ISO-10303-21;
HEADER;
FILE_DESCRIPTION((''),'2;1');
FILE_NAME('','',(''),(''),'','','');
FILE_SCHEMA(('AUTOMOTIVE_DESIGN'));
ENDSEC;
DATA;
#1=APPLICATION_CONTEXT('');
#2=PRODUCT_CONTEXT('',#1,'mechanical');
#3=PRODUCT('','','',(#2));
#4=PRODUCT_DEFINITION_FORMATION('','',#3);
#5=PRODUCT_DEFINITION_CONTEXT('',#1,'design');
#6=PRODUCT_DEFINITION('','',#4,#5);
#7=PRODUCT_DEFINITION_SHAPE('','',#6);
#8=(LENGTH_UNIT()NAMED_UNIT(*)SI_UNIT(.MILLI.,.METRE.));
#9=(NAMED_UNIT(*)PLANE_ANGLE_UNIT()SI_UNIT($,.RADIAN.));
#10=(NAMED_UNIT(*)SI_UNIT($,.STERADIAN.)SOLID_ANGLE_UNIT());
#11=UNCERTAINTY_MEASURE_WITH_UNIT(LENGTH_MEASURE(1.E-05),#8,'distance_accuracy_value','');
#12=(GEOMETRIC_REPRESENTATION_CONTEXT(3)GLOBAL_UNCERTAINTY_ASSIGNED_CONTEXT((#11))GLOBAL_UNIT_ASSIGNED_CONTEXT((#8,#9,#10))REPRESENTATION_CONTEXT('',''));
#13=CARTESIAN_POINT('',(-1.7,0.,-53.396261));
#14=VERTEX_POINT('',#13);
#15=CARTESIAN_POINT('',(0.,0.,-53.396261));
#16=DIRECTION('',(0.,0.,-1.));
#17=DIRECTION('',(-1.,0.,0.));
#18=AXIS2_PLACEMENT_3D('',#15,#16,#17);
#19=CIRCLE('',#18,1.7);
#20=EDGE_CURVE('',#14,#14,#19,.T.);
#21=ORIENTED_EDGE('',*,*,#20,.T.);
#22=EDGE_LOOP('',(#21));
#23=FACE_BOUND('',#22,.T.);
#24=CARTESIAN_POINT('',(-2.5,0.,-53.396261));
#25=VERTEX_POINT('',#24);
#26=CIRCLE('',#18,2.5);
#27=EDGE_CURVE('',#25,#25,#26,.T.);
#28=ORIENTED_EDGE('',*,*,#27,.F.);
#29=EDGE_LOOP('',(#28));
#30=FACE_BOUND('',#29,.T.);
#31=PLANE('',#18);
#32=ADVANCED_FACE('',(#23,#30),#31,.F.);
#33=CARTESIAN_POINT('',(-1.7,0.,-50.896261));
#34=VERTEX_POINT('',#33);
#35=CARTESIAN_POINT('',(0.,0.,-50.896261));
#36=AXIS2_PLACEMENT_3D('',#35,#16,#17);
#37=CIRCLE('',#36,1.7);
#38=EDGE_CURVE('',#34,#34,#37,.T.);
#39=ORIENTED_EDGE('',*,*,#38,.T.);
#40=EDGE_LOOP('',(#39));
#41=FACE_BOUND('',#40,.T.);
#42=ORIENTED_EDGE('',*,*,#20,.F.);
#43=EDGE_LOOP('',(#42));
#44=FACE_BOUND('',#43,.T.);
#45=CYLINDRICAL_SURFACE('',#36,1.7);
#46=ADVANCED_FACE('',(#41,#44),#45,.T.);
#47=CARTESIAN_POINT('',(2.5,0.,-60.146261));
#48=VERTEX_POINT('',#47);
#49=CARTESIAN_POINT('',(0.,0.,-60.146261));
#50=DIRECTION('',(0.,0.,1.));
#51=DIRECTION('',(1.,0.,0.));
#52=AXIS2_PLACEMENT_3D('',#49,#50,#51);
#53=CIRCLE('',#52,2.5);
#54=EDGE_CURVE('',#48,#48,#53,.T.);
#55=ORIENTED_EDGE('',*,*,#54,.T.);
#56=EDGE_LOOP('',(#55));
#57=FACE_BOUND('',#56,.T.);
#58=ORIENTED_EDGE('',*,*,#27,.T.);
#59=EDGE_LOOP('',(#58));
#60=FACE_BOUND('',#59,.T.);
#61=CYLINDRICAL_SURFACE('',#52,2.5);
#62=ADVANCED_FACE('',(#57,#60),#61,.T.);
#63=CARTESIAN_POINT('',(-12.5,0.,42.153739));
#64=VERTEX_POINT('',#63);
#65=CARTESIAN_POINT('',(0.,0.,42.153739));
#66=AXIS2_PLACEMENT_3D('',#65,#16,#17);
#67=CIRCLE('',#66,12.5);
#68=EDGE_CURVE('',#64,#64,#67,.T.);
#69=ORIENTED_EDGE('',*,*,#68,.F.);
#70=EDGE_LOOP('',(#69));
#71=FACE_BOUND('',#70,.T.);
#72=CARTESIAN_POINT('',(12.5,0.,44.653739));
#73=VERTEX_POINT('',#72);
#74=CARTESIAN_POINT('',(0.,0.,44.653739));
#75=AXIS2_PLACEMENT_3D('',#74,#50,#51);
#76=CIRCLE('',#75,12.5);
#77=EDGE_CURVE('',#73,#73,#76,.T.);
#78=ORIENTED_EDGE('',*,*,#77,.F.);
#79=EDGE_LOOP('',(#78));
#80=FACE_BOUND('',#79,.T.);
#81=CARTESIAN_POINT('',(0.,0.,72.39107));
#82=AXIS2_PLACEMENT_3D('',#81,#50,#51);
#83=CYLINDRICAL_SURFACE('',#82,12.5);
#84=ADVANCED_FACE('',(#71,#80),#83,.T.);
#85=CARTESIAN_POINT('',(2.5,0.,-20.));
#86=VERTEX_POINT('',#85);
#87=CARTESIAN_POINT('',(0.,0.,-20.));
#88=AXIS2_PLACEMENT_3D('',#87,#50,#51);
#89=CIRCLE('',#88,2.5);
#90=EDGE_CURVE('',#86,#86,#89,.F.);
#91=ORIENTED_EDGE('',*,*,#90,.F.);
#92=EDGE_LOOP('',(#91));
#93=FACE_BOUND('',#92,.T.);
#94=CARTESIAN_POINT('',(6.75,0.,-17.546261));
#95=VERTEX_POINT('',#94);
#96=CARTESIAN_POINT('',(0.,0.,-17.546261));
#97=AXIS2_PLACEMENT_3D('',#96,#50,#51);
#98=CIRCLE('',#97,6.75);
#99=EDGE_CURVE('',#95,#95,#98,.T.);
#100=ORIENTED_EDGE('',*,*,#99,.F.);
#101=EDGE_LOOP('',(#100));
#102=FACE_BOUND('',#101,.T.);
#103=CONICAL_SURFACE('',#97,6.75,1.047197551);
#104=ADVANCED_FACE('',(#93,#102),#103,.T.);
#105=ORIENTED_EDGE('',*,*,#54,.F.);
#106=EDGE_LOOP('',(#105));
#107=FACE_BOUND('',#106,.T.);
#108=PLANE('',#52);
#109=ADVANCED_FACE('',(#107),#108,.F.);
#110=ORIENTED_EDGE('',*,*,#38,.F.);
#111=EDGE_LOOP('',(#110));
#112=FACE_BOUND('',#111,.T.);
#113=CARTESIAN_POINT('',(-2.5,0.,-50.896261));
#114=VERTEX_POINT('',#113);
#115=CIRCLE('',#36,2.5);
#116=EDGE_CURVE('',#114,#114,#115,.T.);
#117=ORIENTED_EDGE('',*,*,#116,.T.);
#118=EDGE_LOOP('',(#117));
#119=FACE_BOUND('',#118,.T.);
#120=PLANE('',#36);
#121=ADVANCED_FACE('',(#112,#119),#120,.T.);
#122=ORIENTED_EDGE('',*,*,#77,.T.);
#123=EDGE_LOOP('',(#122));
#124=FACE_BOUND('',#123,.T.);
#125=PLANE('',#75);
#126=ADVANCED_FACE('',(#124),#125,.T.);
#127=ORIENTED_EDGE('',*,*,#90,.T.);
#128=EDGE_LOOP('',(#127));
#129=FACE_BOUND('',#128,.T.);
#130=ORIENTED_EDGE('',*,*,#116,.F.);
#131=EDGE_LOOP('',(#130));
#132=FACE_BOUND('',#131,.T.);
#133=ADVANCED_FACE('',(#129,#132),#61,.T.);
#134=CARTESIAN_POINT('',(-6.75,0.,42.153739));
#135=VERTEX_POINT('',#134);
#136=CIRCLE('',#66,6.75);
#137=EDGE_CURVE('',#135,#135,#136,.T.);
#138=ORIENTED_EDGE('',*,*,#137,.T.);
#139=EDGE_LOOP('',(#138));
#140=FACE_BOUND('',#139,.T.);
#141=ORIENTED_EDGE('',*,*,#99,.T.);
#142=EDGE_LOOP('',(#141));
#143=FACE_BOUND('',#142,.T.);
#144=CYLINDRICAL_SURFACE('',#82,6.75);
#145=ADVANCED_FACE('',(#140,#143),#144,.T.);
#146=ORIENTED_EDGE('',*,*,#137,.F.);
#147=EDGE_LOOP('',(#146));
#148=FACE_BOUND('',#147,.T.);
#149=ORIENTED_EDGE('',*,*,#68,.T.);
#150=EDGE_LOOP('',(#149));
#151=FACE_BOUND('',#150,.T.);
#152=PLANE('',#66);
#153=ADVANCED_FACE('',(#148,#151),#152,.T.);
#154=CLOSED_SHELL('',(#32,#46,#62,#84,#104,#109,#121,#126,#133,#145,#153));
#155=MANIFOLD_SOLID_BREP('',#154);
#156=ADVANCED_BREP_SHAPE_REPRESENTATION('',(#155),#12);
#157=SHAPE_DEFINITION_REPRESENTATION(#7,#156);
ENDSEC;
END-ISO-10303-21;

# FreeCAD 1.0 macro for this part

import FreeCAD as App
import Part
import Sketcher
Q = App.Units.Quantity


def add_polygon(sketch, points):
    """Adds a closed chain of lines whose ends are joined by coincident constraints."""
    first, n = sketch.GeometryCount, len(points)
    for a, b in zip(points, points[1:] + points[:1]):
        sketch.addGeometry(Part.LineSegment(App.Vector(*a, 0), App.Vector(*b, 0)), False)
    for i in range(n):
        sketch.addConstraint(Sketcher.Constraint("Coincident", first + i, 2, first + (i + 1) % n, 1))

doc = App.newDocument("Part")
body = doc.addObject("PartDesign::Body", "Body")

# Sketch on YZ plane
sketch1 = body.newObject("Sketcher::SketchObject", "Sketch")
sketch1.AttachmentSupport = (doc.getObject("YZ_Plane"), [""])
sketch1.MapMode = "FlatFace"
add_polygon(sketch1, [(0, 44.7), (-12.5, 44.7), (-12.5, 40.7), (-6.8, 40.7), (-6.8, -17.5), (-2.5, -20), (-2.5, 0), (0, 0)])  # lines 0-7
sketch1.addConstraint(Sketcher.Constraint("Horizontal", 0))
sketch1.addConstraint(Sketcher.Constraint("Vertical", 1))
sketch1.addConstraint(Sketcher.Constraint("Horizontal", 2))
sketch1.addConstraint(Sketcher.Constraint("Vertical", 3))
sketch1.addConstraint(Sketcher.Constraint("Vertical", 5))
sketch1.addConstraint(Sketcher.Constraint("Horizontal", 6))
sketch1.addConstraint(Sketcher.Constraint("Vertical", 7))
sketch1.addConstraint(Sketcher.Constraint("Coincident", 6, 2, -1, 1))
sketch1.addConstraint(Sketcher.Constraint("DistanceY", 1, 2, 1, 1, Q("4 mm")))
sketch1.addConstraint(Sketcher.Constraint("DistanceY", 5, 1, 5, 2, Q("20 mm")))
sketch1.addConstraint(Sketcher.Constraint("Angle", 4, Q("-30 deg")))
sketch1.addConstraint(Sketcher.Constraint("DistanceX", 0, 2, 0, 1, Q("12.5 mm")))
sketch1.addConstraint(Sketcher.Constraint("DistanceX", 6, 1, 6, 2, Q("2.5 mm")))
sketch1.addConstraint(Sketcher.Constraint("DistanceY", 3, 2, 3, 1, Q("58.2 mm")))
sketch1.addConstraint(Sketcher.Constraint("DistanceX", 2, 1, 2, 2, Q("5.75 mm")))
revolution = body.newObject("PartDesign::Revolution", "Revolution")
revolution.Profile = sketch1
revolution.ReferenceAxis = (sketch1, ["V_Axis"])
revolution.Angle = 360

# Sketch on XY plane
sketch2 = body.newObject("Sketcher::SketchObject", "Sketch001")
sketch2.AttachmentSupport = (doc.getObject("XY_Plane"), [""])
sketch2.MapMode = "FlatFace"
sketch2.AttachmentOffset = App.Placement(App.Vector(0, 0, 40.653739), App.Rotation())
sketch2.addGeometry(Part.Circle(App.Vector(0, 0, 0), App.Vector(0, 0, 1), 12), False)
sketch2.addGeometry(Part.Circle(App.Vector(0, 0, 0), App.Vector(0, 0, 1), 7), False)
sketch2.addConstraint(Sketcher.Constraint("Coincident", 0, 3, -1, 1))
sketch2.addConstraint(Sketcher.Constraint("Coincident", 1, 3, -1, 1))
sketch2.addConstraint(Sketcher.Constraint("Diameter", 0, Q("25 mm")))
sketch2.addConstraint(Sketcher.Constraint("Diameter", 1, Q("13.5 mm")))
pocket1 = body.newObject("PartDesign::Pocket", "Pocket")
pocket1.Profile = sketch2
pocket1.Length = 1.5
pocket1.Reversed = True

# Sketch on XY plane
sketch3 = body.newObject("Sketcher::SketchObject", "Sketch002")
sketch3.AttachmentSupport = (doc.getObject("XY_Plane"), [""])
sketch3.MapMode = "FlatFace"
sketch3.AttachmentOffset = App.Placement(App.Vector(0, 0, 44.653739), App.Rotation())
sketch3.addGeometry(Part.Circle(App.Vector(0, 0, 0), App.Vector(0, 0, 1), 2.5), False)
sketch3.addConstraint(Sketcher.Constraint("Coincident", 0, 3, -1, 1))
sketch3.addConstraint(Sketcher.Constraint("Diameter", 0, Q("5 mm")))
pad1 = body.newObject("PartDesign::Pad", "Pad")
pad1.Profile = sketch3
pad1.Length = 104.8
pad1.Reversed = True

# Sketch on XY plane
sketch4 = body.newObject("Sketcher::SketchObject", "Sketch003")
sketch4.AttachmentSupport = (doc.getObject("XY_Plane"), [""])
sketch4.MapMode = "FlatFace"
sketch4.AttachmentOffset = App.Placement(App.Vector(0, 0, -50.896261), App.Rotation())
sketch4.addGeometry(Part.Circle(App.Vector(0, 0, 0), App.Vector(0, 0, 1), 2.5), False)
sketch4.addGeometry(Part.Circle(App.Vector(0, 0, 0), App.Vector(0, 0, 1), 1.7), False)
sketch4.addConstraint(Sketcher.Constraint("Coincident", 0, 3, -1, 1))
sketch4.addConstraint(Sketcher.Constraint("Coincident", 1, 3, -1, 1))
sketch4.addConstraint(Sketcher.Constraint("Diameter", 0, Q("5 mm")))
sketch4.addConstraint(Sketcher.Constraint("Diameter", 1, Q("3.4 mm")))
pocket2 = body.newObject("PartDesign::Pocket", "Pocket001")
pocket2.Profile = sketch4
pocket2.Length = 2.5

doc.recompute()
